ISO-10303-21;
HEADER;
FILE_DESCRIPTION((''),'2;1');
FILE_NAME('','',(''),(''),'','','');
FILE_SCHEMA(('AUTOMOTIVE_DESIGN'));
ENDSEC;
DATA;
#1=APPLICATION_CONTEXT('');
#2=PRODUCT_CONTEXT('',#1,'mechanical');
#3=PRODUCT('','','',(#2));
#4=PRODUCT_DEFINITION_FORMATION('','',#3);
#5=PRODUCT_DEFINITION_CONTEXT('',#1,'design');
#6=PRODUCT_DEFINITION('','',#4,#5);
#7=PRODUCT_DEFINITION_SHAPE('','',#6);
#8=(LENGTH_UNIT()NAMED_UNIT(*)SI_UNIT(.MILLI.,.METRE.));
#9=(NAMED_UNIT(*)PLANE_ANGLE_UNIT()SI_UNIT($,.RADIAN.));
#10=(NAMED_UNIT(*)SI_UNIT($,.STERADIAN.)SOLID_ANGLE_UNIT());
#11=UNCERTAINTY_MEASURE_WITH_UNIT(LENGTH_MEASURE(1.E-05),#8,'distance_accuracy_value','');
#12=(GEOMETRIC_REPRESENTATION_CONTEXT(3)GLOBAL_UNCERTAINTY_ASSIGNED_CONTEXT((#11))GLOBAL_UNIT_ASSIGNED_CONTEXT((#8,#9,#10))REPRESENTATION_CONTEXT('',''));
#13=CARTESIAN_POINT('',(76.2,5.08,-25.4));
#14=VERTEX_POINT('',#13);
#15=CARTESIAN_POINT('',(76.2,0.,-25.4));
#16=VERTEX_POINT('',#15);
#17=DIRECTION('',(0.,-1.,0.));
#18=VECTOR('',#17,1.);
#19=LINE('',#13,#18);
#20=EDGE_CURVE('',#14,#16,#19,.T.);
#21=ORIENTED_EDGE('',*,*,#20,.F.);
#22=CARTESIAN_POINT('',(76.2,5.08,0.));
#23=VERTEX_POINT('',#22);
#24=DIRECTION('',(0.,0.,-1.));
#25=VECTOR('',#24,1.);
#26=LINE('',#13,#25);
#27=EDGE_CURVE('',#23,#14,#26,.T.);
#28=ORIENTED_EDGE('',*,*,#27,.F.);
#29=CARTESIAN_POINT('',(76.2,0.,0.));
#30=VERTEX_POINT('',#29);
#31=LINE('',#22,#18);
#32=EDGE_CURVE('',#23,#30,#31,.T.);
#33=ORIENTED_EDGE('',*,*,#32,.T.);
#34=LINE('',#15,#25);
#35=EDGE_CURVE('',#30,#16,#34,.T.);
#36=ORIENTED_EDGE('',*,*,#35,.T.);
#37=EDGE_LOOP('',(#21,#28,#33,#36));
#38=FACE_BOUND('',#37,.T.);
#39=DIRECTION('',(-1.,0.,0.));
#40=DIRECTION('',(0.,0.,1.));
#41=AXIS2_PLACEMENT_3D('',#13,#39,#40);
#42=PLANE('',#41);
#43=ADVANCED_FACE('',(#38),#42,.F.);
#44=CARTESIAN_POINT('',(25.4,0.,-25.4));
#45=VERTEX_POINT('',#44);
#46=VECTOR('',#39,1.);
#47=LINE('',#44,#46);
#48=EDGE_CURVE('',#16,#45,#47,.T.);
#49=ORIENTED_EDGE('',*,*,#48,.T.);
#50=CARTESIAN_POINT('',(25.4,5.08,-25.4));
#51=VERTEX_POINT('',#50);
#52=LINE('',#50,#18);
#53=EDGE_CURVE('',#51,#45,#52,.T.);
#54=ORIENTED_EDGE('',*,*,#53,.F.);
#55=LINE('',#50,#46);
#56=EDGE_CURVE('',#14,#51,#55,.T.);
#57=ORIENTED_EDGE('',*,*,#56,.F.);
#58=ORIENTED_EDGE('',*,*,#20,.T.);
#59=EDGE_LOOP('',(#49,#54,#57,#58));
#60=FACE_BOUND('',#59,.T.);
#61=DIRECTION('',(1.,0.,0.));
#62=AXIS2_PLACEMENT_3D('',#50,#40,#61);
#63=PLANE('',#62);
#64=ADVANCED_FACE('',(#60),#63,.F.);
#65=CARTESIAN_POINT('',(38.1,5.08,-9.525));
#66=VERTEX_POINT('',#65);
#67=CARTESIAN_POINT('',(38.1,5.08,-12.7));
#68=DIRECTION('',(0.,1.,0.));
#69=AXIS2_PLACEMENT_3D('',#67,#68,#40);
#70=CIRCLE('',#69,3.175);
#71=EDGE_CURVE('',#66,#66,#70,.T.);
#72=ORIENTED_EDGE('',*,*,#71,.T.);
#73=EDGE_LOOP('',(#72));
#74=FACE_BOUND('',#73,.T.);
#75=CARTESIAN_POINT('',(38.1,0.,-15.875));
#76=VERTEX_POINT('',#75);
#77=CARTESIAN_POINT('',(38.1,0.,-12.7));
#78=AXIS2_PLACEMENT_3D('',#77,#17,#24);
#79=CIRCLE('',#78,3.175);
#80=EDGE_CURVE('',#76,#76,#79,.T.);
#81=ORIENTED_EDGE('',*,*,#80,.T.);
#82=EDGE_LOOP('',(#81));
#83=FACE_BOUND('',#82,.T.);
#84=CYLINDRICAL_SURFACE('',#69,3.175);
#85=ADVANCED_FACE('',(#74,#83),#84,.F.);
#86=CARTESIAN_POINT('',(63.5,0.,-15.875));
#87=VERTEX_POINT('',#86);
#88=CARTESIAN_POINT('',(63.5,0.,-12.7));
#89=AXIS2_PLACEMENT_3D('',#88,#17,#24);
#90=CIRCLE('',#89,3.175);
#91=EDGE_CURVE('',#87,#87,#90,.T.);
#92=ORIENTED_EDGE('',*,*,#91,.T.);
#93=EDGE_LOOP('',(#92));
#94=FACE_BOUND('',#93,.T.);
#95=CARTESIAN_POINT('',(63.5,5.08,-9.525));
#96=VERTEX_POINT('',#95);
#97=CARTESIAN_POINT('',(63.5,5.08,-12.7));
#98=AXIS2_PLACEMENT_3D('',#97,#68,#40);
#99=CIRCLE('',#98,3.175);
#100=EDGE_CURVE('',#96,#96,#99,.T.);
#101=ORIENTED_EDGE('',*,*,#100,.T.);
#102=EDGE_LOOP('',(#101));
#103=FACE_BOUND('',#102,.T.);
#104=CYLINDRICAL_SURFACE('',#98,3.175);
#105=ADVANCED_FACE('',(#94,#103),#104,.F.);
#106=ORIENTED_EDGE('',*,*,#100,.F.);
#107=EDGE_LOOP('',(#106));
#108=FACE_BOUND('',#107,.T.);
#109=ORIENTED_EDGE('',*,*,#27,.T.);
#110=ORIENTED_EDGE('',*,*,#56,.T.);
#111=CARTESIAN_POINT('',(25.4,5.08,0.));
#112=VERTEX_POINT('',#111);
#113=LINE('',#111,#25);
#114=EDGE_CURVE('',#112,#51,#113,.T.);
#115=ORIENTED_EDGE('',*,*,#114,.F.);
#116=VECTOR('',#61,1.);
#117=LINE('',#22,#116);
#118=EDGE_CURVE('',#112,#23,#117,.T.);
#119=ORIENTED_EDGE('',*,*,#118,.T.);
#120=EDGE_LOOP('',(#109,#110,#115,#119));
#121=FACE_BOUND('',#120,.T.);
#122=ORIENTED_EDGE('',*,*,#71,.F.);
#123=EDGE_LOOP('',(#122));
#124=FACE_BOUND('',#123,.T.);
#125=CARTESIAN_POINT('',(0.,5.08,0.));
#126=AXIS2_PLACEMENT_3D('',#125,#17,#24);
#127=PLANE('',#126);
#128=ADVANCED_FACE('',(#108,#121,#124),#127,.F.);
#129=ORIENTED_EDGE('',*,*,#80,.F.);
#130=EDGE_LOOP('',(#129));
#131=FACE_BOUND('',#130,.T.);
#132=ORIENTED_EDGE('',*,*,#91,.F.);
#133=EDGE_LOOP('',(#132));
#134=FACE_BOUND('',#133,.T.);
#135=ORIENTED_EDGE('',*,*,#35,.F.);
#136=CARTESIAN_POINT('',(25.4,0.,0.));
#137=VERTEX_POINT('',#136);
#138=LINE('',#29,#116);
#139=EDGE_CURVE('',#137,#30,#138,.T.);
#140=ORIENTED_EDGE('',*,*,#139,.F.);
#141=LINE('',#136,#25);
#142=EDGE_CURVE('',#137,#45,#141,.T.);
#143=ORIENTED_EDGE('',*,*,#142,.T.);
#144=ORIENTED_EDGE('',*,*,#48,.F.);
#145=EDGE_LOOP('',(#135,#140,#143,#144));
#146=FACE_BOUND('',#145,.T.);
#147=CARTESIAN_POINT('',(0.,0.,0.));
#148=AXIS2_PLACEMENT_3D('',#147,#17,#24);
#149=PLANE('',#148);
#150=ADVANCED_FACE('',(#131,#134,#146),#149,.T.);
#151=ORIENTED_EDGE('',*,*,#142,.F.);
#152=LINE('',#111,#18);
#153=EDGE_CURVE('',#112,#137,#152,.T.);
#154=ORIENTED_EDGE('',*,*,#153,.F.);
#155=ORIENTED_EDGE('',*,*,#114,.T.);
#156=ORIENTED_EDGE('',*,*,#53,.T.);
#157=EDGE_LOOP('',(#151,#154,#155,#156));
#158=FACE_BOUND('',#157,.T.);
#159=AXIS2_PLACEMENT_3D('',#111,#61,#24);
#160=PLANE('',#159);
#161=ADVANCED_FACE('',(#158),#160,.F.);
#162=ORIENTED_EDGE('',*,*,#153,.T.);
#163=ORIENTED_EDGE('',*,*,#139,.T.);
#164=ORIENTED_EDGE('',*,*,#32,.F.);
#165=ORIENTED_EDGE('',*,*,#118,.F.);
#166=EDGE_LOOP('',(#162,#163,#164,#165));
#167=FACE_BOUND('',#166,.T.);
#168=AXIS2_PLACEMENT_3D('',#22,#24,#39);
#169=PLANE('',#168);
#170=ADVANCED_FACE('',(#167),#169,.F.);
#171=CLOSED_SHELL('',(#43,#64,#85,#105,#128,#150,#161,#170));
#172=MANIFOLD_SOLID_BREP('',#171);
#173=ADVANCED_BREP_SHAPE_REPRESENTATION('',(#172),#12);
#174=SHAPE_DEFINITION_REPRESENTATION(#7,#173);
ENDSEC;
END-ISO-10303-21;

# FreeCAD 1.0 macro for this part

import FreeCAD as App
import Part
import Sketcher
from FreeCAD import Vector
Q = App.Units.Quantity


def add_polygon(sketch, points):
    """Adds a closed chain of lines whose ends are joined by coincident constraints."""
    first, n = sketch.GeometryCount, len(points)
    for a, b in zip(points, points[1:] + points[:1]):
        sketch.addGeometry(Part.LineSegment(App.Vector(*a, 0), App.Vector(*b, 0)), False)
    for i in range(n):
        sketch.addConstraint(Sketcher.Constraint("Coincident", first + i, 2, first + (i + 1) % n, 1))

doc = App.newDocument("Part")
body = doc.addObject("PartDesign::Body", "Body")

# Sketch on XZ plane
sketch1 = body.newObject("Sketcher::SketchObject", "Sketch")
sketch1.AttachmentSupport = (doc.getObject("XZ_Plane"), [""])
sketch1.MapMode = "FlatFace"
add_polygon(sketch1, [(0, -76.2), (0, 0), (76.2, 0), (76.2, -25.4), (25.4, -25.4), (25.4, -76.2)])  # lines 0-5
sketch1.addConstraint([
    Sketcher.Constraint("Vertical", 0),
    Sketcher.Constraint("Horizontal", 1),
    Sketcher.Constraint("Vertical", 2),
    Sketcher.Constraint("Horizontal", 3),
    Sketcher.Constraint("Vertical", 4),
    Sketcher.Constraint("Horizontal", 5),
    Sketcher.Constraint("Coincident", 0, 2, -1, 1),
    Sketcher.Constraint("Equal", 1, 0),
    Sketcher.Constraint("Equal", 5, 2),
    Sketcher.Constraint("DistanceX", 1, 1, 1, 2, Q("3 in")),
    Sketcher.Constraint("DistanceX", 3, 2, 3, 1, Q("2 in")),
])
pad1 = body.newObject("PartDesign::Pad", "Pad")
pad1.Profile = sketch1
pad1.Length = Q("0.2 in")
pad1.Reversed = True

# Sketch on XZ plane
sketch2 = body.newObject("Sketcher::SketchObject", "Sketch001")
sketch2.AttachmentSupport = (doc.getObject("XZ_Plane"), [""])
sketch2.MapMode = "FlatFace"
sketch2.AttachmentOffset = App.Placement(Vector(0, 0, -0.2 * 25.4), App.Rotation())
sketch2.addGeometry([
    Part.Circle(Vector(12.7, -63.5, 0), Vector(0, 0, 1), 3.175),  # 0
    Part.Circle(Vector(12.7, -38.1, 0), Vector(0, 0, 1), 3.175),  # 1
    Part.Circle(Vector(12.7, -12.7, 0), Vector(0, 0, 1), 3.175),  # 2
    Part.Circle(Vector(38.1, -12.7, 0), Vector(0, 0, 1), 3.175),  # 3
    Part.Circle(Vector(63.5, -12.7, 0), Vector(0, 0, 1), 3.175),  # 4
], False)
sketch2.addConstraint([
    Sketcher.Constraint("Equal", 0, 1),
    Sketcher.Constraint("Equal", 1, 2),
    Sketcher.Constraint("Equal", 2, 3),
    Sketcher.Constraint("Equal", 3, 4),
    Sketcher.Constraint("Horizontal", 2, 3, 3, 3),
    Sketcher.Constraint("Horizontal", 3, 3, 4, 3),
    Sketcher.Constraint("Vertical", 0, 3, 1, 3),
    Sketcher.Constraint("Vertical", 1, 3, 2, 3),
    Sketcher.Constraint("Diameter", 0, Q("0.25 in")),
    Sketcher.Constraint("DistanceY", 0, 3, 1, 3, Q("1 in")),
    Sketcher.Constraint("DistanceY", 1, 3, 2, 3, Q("1 in")),
    Sketcher.Constraint("DistanceX", 2, 3, 3, 3, Q("1 in")),
    Sketcher.Constraint("DistanceX", 3, 3, 4, 3, Q("1 in")),
    Sketcher.Constraint("DistanceX", -1, 1, 0, 3, Q("0.5 in")),
    Sketcher.Constraint("DistanceY", 0, 3, -1, 1, Q("2.5 in")),
])
doc.recompute()
hole = body.newObject("PartDesign::Hole", "Hole")
hole.Profile = sketch2
hole.ThreadType = "None"
hole.Diameter = Q("0.25 in")
hole.DepthType = "Dimension"
hole.Depth = Q("1 in")
hole.DrillPoint = "Angled"
hole.DrillPointAngle = 118
hole.Reversed = True

# Sketch on XY plane
sketch3 = body.newObject("Sketcher::SketchObject", "Sketch002")
sketch3.AttachmentSupport = (doc.getObject("XY_Plane"), [""])
sketch3.MapMode = "FlatFace"
sketch3.AttachmentOffset = App.Placement(Vector(0, 0, -3 * 25.4), App.Rotation())
add_polygon(sketch3, [(25.4, 5.08), (25.4, 0), (0, 0), (0, 5.08)])  # lines 0-3
sketch3.addConstraint([
    Sketcher.Constraint("Vertical", 0),
    Sketcher.Constraint("Horizontal", 1),
    Sketcher.Constraint("Vertical", 2),
    Sketcher.Constraint("Horizontal", 3),
    Sketcher.Constraint("Coincident", 1, 2, -1, 1),
    Sketcher.Constraint("DistanceX", 1, 2, 1, 1, Q("1 in")),
    Sketcher.Constraint("DistanceY", 0, 2, 0, 1, Q("0.2 in")),
])
pocket1 = body.newObject("PartDesign::Pocket", "Pocket")
pocket1.Profile = sketch3
pocket1.Type = "ThroughAll"
pocket1.Midplane = True

doc.recompute()
